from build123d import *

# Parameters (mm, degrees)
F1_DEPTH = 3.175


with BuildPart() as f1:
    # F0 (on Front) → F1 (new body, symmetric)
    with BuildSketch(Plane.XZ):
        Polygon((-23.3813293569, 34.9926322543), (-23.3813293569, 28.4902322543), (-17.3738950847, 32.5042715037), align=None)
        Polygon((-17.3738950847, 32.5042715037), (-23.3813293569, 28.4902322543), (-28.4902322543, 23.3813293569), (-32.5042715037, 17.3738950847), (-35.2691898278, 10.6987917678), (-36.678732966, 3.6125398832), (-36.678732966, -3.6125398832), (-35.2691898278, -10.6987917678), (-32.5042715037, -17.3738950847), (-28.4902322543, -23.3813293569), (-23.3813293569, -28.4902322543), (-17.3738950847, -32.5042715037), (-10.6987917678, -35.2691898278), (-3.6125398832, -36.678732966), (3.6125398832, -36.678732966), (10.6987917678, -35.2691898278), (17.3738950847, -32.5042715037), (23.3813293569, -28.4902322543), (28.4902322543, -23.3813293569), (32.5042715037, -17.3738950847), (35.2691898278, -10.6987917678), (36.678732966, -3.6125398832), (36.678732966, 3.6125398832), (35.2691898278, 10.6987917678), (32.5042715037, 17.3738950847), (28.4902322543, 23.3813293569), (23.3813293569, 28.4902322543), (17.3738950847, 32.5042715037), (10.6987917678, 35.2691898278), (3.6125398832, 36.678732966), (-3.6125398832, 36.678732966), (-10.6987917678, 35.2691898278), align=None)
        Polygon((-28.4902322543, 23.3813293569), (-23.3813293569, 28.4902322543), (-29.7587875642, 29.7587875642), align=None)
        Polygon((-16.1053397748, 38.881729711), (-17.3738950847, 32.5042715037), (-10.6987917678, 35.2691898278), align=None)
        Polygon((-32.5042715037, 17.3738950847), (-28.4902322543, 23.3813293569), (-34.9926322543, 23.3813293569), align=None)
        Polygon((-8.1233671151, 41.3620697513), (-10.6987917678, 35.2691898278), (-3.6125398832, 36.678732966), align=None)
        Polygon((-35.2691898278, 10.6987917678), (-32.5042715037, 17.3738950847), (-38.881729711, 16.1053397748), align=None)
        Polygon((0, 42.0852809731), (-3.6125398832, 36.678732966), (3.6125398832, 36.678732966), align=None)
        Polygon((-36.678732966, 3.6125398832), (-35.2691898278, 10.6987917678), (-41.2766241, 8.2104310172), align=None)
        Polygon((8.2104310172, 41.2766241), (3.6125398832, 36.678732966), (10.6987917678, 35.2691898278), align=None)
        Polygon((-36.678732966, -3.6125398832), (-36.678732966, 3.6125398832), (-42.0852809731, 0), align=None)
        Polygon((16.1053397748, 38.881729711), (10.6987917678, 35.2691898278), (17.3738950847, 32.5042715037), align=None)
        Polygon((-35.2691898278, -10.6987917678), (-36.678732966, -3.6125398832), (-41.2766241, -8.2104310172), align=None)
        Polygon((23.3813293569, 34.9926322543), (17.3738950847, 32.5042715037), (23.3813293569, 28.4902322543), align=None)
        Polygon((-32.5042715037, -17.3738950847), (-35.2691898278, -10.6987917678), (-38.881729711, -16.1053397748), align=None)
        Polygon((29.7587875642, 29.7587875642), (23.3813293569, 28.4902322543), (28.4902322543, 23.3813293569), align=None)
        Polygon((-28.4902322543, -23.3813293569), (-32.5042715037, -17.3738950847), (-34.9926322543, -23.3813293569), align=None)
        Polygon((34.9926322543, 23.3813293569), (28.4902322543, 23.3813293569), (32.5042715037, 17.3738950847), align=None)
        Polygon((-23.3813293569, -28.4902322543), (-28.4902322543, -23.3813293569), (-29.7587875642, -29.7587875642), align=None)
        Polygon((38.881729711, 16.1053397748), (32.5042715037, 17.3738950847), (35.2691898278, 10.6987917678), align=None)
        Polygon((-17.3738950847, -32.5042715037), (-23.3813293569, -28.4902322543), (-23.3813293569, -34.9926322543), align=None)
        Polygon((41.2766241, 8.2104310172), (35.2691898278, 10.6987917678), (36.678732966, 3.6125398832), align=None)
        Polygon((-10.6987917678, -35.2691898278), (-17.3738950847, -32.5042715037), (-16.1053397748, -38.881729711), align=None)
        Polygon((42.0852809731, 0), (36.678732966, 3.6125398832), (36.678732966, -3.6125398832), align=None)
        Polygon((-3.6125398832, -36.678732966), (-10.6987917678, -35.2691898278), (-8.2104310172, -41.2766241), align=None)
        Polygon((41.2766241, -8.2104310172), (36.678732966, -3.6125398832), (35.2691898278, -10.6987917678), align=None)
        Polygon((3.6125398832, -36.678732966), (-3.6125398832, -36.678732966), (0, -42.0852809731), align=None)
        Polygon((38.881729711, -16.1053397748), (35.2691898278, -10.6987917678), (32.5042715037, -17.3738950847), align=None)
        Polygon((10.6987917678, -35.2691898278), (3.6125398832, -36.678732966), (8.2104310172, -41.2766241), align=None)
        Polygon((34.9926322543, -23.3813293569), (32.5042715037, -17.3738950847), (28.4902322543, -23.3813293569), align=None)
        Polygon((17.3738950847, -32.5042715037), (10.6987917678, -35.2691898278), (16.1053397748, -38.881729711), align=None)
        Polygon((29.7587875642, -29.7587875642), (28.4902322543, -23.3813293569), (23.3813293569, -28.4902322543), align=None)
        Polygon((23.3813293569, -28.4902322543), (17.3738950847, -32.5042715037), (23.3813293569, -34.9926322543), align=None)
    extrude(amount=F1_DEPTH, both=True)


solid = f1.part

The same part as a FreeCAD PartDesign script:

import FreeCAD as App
import Part
import Sketcher
Q = App.Units.Quantity

doc = App.newDocument("Part")
body = doc.addObject("PartDesign::Body", "Body")

# Sketch on XZ plane
sketch1 = body.newObject("Sketcher::SketchObject", "Sketch")
sketch1.AttachmentSupport = (doc.getObject("XZ_Plane"), [""])
sketch1.MapMode = "FlatFace"
sketch1.addGeometry([
    Part.LineSegment(App.Vector(-23, 35, 0), App.Vector(-23, 28, 0)),  # 0
    Part.LineSegment(App.Vector(-23, 28, 0), App.Vector(-30, 30, 0)),  # 1
    Part.LineSegment(App.Vector(-30, 30, 0), App.Vector(-28, 23, 0)),  # 2
    Part.LineSegment(App.Vector(-28, 23, 0), App.Vector(-35, 23, 0)),  # 3
    Part.LineSegment(App.Vector(-35, 23, 0), App.Vector(-33, 17, 0)),  # 4
    Part.LineSegment(App.Vector(-33, 17, 0), App.Vector(-39, 16, 0)),  # 5
    Part.LineSegment(App.Vector(-39, 16, 0), App.Vector(-35, 11, 0)),  # 6
    Part.LineSegment(App.Vector(-35, 11, 0), App.Vector(-41, 8, 0)),  # 7
    Part.LineSegment(App.Vector(-41, 8, 0), App.Vector(-37, 4, 0)),  # 8
    Part.LineSegment(App.Vector(-37, 4, 0), App.Vector(-42, 0, 0)),  # 9
    Part.LineSegment(App.Vector(-42, 0, 0), App.Vector(-37, -4, 0)),  # 10
    Part.LineSegment(App.Vector(-37, -4, 0), App.Vector(-41, -8, 0)),  # 11
    Part.LineSegment(App.Vector(-41, -8, 0), App.Vector(-35, -11, 0)),  # 12
    Part.LineSegment(App.Vector(-35, -11, 0), App.Vector(-39, -16, 0)),  # 13
    Part.LineSegment(App.Vector(-39, -16, 0), App.Vector(-33, -17, 0)),  # 14
    Part.LineSegment(App.Vector(-33, -17, 0), App.Vector(-35, -23, 0)),  # 15
    Part.LineSegment(App.Vector(-35, -23, 0), App.Vector(-28, -23, 0)),  # 16
    Part.LineSegment(App.Vector(-28, -23, 0), App.Vector(-30, -30, 0)),  # 17
    Part.LineSegment(App.Vector(-30, -30, 0), App.Vector(-23, -28, 0)),  # 18
    Part.LineSegment(App.Vector(-23, -28, 0), App.Vector(-23, -35, 0)),  # 19
    Part.LineSegment(App.Vector(-23, -35, 0), App.Vector(-17, -33, 0)),  # 20
    Part.LineSegment(App.Vector(-17, -33, 0), App.Vector(-16, -39, 0)),  # 21
    Part.LineSegment(App.Vector(-16, -39, 0), App.Vector(-11, -35, 0)),  # 22
    Part.LineSegment(App.Vector(-11, -35, 0), App.Vector(-8, -41, 0)),  # 23
    Part.LineSegment(App.Vector(-8, -41, 0), App.Vector(-4, -37, 0)),  # 24
    Part.LineSegment(App.Vector(-4, -37, 0), App.Vector(0, -42, 0)),  # 25
    Part.LineSegment(App.Vector(0, -42, 0), App.Vector(4, -37, 0)),  # 26
    Part.LineSegment(App.Vector(4, -37, 0), App.Vector(8, -41, 0)),  # 27
    Part.LineSegment(App.Vector(8, -41, 0), App.Vector(11, -35, 0)),  # 28
    Part.LineSegment(App.Vector(11, -35, 0), App.Vector(16, -39, 0)),  # 29
    Part.LineSegment(App.Vector(16, -39, 0), App.Vector(17, -33, 0)),  # 30
    Part.LineSegment(App.Vector(17, -33, 0), App.Vector(23, -35, 0)),  # 31
    Part.LineSegment(App.Vector(23, -35, 0), App.Vector(23, -28, 0)),  # 32
    Part.LineSegment(App.Vector(23, -28, 0), App.Vector(30, -30, 0)),  # 33
    Part.LineSegment(App.Vector(30, -30, 0), App.Vector(28, -23, 0)),  # 34
    Part.LineSegment(App.Vector(28, -23, 0), App.Vector(35, -23, 0)),  # 35
    Part.LineSegment(App.Vector(35, -23, 0), App.Vector(33, -17, 0)),  # 36
    Part.LineSegment(App.Vector(33, -17, 0), App.Vector(39, -16, 0)),  # 37
    Part.LineSegment(App.Vector(39, -16, 0), App.Vector(35, -11, 0)),  # 38
    Part.LineSegment(App.Vector(35, -11, 0), App.Vector(41, -8, 0)),  # 39
    Part.LineSegment(App.Vector(41, -8, 0), App.Vector(37, -4, 0)),  # 40
    Part.LineSegment(App.Vector(37, -4, 0), App.Vector(42, 0, 0)),  # 41
    Part.LineSegment(App.Vector(42, 0, 0), App.Vector(37, 4, 0)),  # 42
    Part.LineSegment(App.Vector(37, 4, 0), App.Vector(41, 8, 0)),  # 43
    Part.LineSegment(App.Vector(41, 8, 0), App.Vector(35, 11, 0)),  # 44
    Part.LineSegment(App.Vector(35, 11, 0), App.Vector(39, 16, 0)),  # 45
    Part.LineSegment(App.Vector(39, 16, 0), App.Vector(33, 17, 0)),  # 46
    Part.LineSegment(App.Vector(33, 17, 0), App.Vector(35, 23, 0)),  # 47
    Part.LineSegment(App.Vector(35, 23, 0), App.Vector(28, 23, 0)),  # 48
    Part.LineSegment(App.Vector(28, 23, 0), App.Vector(30, 30, 0)),  # 49
    Part.LineSegment(App.Vector(30, 30, 0), App.Vector(23, 28, 0)),  # 50
    Part.LineSegment(App.Vector(23, 28, 0), App.Vector(23, 35, 0)),  # 51
    Part.LineSegment(App.Vector(23, 35, 0), App.Vector(17, 33, 0)),  # 52
    Part.LineSegment(App.Vector(17, 33, 0), App.Vector(16, 39, 0)),  # 53
    Part.LineSegment(App.Vector(16, 39, 0), App.Vector(11, 35, 0)),  # 54
    Part.LineSegment(App.Vector(11, 35, 0), App.Vector(8, 41, 0)),  # 55
    Part.LineSegment(App.Vector(8, 41, 0), App.Vector(4, 37, 0)),  # 56
    Part.LineSegment(App.Vector(4, 37, 0), App.Vector(0, 42, 0)),  # 57
    Part.LineSegment(App.Vector(0, 42, 0), App.Vector(-4, 37, 0)),  # 58
    Part.LineSegment(App.Vector(-4, 37, 0), App.Vector(-8, 41, 0)),  # 59
    Part.LineSegment(App.Vector(-8, 41, 0), App.Vector(-11, 35, 0)),  # 60
    Part.LineSegment(App.Vector(-11, 35, 0), App.Vector(-16, 39, 0)),  # 61
    Part.LineSegment(App.Vector(-16, 39, 0), App.Vector(-17, 33, 0)),  # 62
    Part.LineSegment(App.Vector(-17, 33, 0), App.Vector(-23, 35, 0)),  # 63
], False)
sketch1.addConstraint([
    Sketcher.Constraint("Coincident", 0, 2, 1, 1),
    Sketcher.Constraint("Coincident", 1, 2, 2, 1),
    Sketcher.Constraint("Coincident", 2, 2, 3, 1),
    Sketcher.Constraint("Coincident", 3, 2, 4, 1),
    Sketcher.Constraint("Coincident", 4, 2, 5, 1),
    Sketcher.Constraint("Coincident", 5, 2, 6, 1),
    Sketcher.Constraint("Coincident", 6, 2, 7, 1),
    Sketcher.Constraint("Coincident", 7, 2, 8, 1),
    Sketcher.Constraint("Coincident", 8, 2, 9, 1),
    Sketcher.Constraint("Coincident", 9, 2, 10, 1),
    Sketcher.Constraint("Coincident", 10, 2, 11, 1),
    Sketcher.Constraint("Coincident", 11, 2, 12, 1),
    Sketcher.Constraint("Coincident", 12, 2, 13, 1),
    Sketcher.Constraint("Coincident", 13, 2, 14, 1),
    Sketcher.Constraint("Coincident", 14, 2, 15, 1),
    Sketcher.Constraint("Coincident", 15, 2, 16, 1),
    Sketcher.Constraint("Coincident", 16, 2, 17, 1),
    Sketcher.Constraint("Coincident", 17, 2, 18, 1),
    Sketcher.Constraint("Coincident", 18, 2, 19, 1),
    Sketcher.Constraint("Coincident", 19, 2, 20, 1),
    Sketcher.Constraint("Coincident", 20, 2, 21, 1),
    Sketcher.Constraint("Coincident", 21, 2, 22, 1),
    Sketcher.Constraint("Coincident", 22, 2, 23, 1),
    Sketcher.Constraint("Coincident", 23, 2, 24, 1),
    Sketcher.Constraint("Coincident", 24, 2, 25, 1),
    Sketcher.Constraint("Coincident", 25, 2, 26, 1),
    Sketcher.Constraint("Coincident", 26, 2, 27, 1),
    Sketcher.Constraint("Coincident", 27, 2, 28, 1),
    Sketcher.Constraint("Coincident", 28, 2, 29, 1),
    Sketcher.Constraint("Coincident", 29, 2, 30, 1),
    Sketcher.Constraint("Coincident", 30, 2, 31, 1),
    Sketcher.Constraint("Coincident", 31, 2, 32, 1),
    Sketcher.Constraint("Coincident", 32, 2, 33, 1),
    Sketcher.Constraint("Coincident", 33, 2, 34, 1),
    Sketcher.Constraint("Coincident", 34, 2, 35, 1),
    Sketcher.Constraint("Coincident", 35, 2, 36, 1),
    Sketcher.Constraint("Coincident", 36, 2, 37, 1),
    Sketcher.Constraint("Coincident", 37, 2, 38, 1),
    Sketcher.Constraint("Coincident", 38, 2, 39, 1),
    Sketcher.Constraint("Coincident", 39, 2, 40, 1),
    Sketcher.Constraint("Coincident", 40, 2, 41, 1),
    Sketcher.Constraint("Coincident", 41, 2, 42, 1),
    Sketcher.Constraint("Coincident", 42, 2, 43, 1),
    Sketcher.Constraint("Coincident", 43, 2, 44, 1),
    Sketcher.Constraint("Coincident", 44, 2, 45, 1),
    Sketcher.Constraint("Coincident", 45, 2, 46, 1),
    Sketcher.Constraint("Coincident", 46, 2, 47, 1),
    Sketcher.Constraint("Coincident", 47, 2, 48, 1),
    Sketcher.Constraint("Coincident", 48, 2, 49, 1),
    Sketcher.Constraint("Coincident", 49, 2, 50, 1),
    Sketcher.Constraint("Coincident", 50, 2, 51, 1),
    Sketcher.Constraint("Coincident", 51, 2, 52, 1),
    Sketcher.Constraint("Coincident", 52, 2, 53, 1),
    Sketcher.Constraint("Coincident", 53, 2, 54, 1),
    Sketcher.Constraint("Coincident", 54, 2, 55, 1),
    Sketcher.Constraint("Coincident", 55, 2, 56, 1),
    Sketcher.Constraint("Coincident", 56, 2, 57, 1),
    Sketcher.Constraint("Coincident", 57, 2, 58, 1),
    Sketcher.Constraint("Coincident", 58, 2, 59, 1),
    Sketcher.Constraint("Coincident", 59, 2, 60, 1),
    Sketcher.Constraint("Coincident", 60, 2, 61, 1),
    Sketcher.Constraint("Coincident", 61, 2, 62, 1),
    Sketcher.Constraint("Coincident", 62, 2, 63, 1),
    Sketcher.Constraint("Coincident", 63, 2, 0, 1),
    Sketcher.Constraint("Vertical", 0),
    Sketcher.Constraint("Horizontal", 3),
    Sketcher.Constraint("Horizontal", 16),
    Sketcher.Constraint("Vertical", 19),
    Sketcher.Constraint("Vertical", 32),
    Sketcher.Constraint("Horizontal", 35),
    Sketcher.Constraint("Horizontal", 48),
    Sketcher.Constraint("Vertical", 51),
    Sketcher.Constraint("Symmetric", 0, 2, 32, 2, -1, 1),
    Sketcher.Constraint("Symmetric", 1, 2, 33, 2, -1, 1),
    Sketcher.Constraint("Symmetric", 2, 2, 34, 2, -1, 1),
    Sketcher.Constraint("Symmetric", 4, 2, 36, 2, -1, 1),
    Sketcher.Constraint("Symmetric", 5, 2, 37, 2, -1, 1),
    Sketcher.Constraint("Symmetric", 6, 2, 38, 2, -1, 1),
    Sketcher.Constraint("Symmetric", 7, 2, 39, 2, -1, 1),
    Sketcher.Constraint("Symmetric", 8, 2, 40, 2, -1, 1),
    Sketcher.Constraint("Symmetric", 9, 2, 41, 2, -1, 1),
    Sketcher.Constraint("Symmetric", 10, 2, 42, 2, -1, 1),
    Sketcher.Constraint("Symmetric", 11, 2, 43, 2, -1, 1),
    Sketcher.Constraint("Symmetric", 12, 2, 44, 2, -1, 1),
    Sketcher.Constraint("Symmetric", 13, 2, 45, 2, -1, 1),
    Sketcher.Constraint("Symmetric", 14, 2, 46, 2, -1, 1),
    Sketcher.Constraint("Symmetric", 15, 2, 47, 2, -1, 1),
    Sketcher.Constraint("Symmetric", 17, 2, 49, 2, -1, 1),
    Sketcher.Constraint("Symmetric", 18, 2, 50, 2, -1, 1),
    Sketcher.Constraint("Symmetric", 20, 2, 52, 2, -1, 1),
    Sketcher.Constraint("Symmetric", 21, 2, 53, 2, -1, 1),
    Sketcher.Constraint("Symmetric", 22, 2, 54, 2, -1, 1),
    Sketcher.Constraint("Symmetric", 23, 2, 55, 2, -1, 1),
    Sketcher.Constraint("Symmetric", 24, 2, 56, 2, -1, 1),
    Sketcher.Constraint("Symmetric", 25, 2, 57, 2, -1, 1),
    Sketcher.Constraint("Symmetric", 26, 2, 58, 2, -1, 1),
    Sketcher.Constraint("Symmetric", 28, 2, 60, 2, -1, 1),
    Sketcher.Constraint("Symmetric", 29, 2, 61, 2, -1, 1),
    Sketcher.Constraint("Symmetric", 30, 2, 62, 2, -1, 1),
    Sketcher.Constraint("Symmetric", 24, 2, 26, 2, -2),
    Sketcher.Constraint("Symmetric", 23, 2, 27, 2, -2),
    Sketcher.Constraint("Symmetric", 22, 2, 28, 2, -2),
    Sketcher.Constraint("Symmetric", 21, 2, 29, 2, -2),
    Sketcher.Constraint("Symmetric", 20, 2, 30, 2, -2),
    Sketcher.Constraint("Symmetric", 19, 2, 31, 2, -2),
    Sketcher.Constraint("Symmetric", 17, 2, 33, 2, -2),
    Sketcher.Constraint("Symmetric", 16, 2, 34, 2, -2),
    Sketcher.Constraint("Symmetric", 14, 2, 36, 2, -2),
    Sketcher.Constraint("Symmetric", 13, 2, 37, 2, -2),
    Sketcher.Constraint("Symmetric", 12, 2, 38, 2, -2),
    Sketcher.Constraint("Symmetric", 11, 2, 39, 2, -2),
    Sketcher.Constraint("Symmetric", 10, 2, 40, 2, -2),
    Sketcher.Constraint("PointOnObject", 9, 2, -1),
    Sketcher.Constraint("PointOnObject", 25, 2, -2),
    Sketcher.Constraint("Perpendicular", 2, 5),
    Sketcher.Constraint("Perpendicular", 4, 7),
    Sketcher.Constraint("Perpendicular", 6, 9),
    Sketcher.Constraint("Perpendicular", 8, 11),
    Sketcher.Constraint("Parallel", 1, 14),
    Sketcher.Constraint("Perpendicular", 12, 15),
    Sketcher.Constraint("Parallel", 5, 18),
    Sketcher.Constraint("Parallel", 7, 20),
    Sketcher.Constraint("Perpendicular", 18, 21),
    Sketcher.Constraint("Parallel", 9, 22),
    Sketcher.Constraint("Perpendicular", 20, 23),
    Sketcher.Constraint("Parallel", 11, 24),
    Sketcher.Constraint("Perpendicular", 22, 25),
    Sketcher.Constraint("Parallel", 23, 36),
    Sketcher.Constraint("Perpendicular", 46, 49),
    Sketcher.Constraint("Parallel", 39, 52),
    Sketcher.Constraint("Perpendicular", 47, 63),
    Sketcher.Constraint("Equal", 48, 0),
    Sketcher.Constraint("Equal", 1, 2),
    Sketcher.Constraint("Equal", 2, 4),
    Sketcher.Constraint("Equal", 4, 5),
    Sketcher.Constraint("Equal", 5, 6),
    Sketcher.Constraint("Equal", 6, 7),
    Sketcher.Constraint("Equal", 7, 8),
    Sketcher.Constraint("Equal", 8, 9),
    Sketcher.Constraint("Equal", 18, 20),
    Sketcher.Constraint("Equal", 20, 21),
    Sketcher.Constraint("Equal", 21, 22),
    Sketcher.Constraint("Equal", 22, 23),
    Sketcher.Constraint("Equal", 23, 24),
    Sketcher.Constraint("Equal", 24, 25),
    Sketcher.Constraint("Equal", 58, 59),
    Sketcher.Constraint("Angle", 4, Q("-67.5 deg")),
    Sketcher.Constraint("DistanceX", 3, 2, 3, 1, Q("0.256 in")),
    Sketcher.Constraint("Angle", 1, Q("168.75 deg")),
    Sketcher.Constraint("Angle", 6, Q("-56.25 deg")),
    Sketcher.Constraint("Distance", 1, Q("0.256 in")),
    Sketcher.Constraint("Distance", 60, Q("6.614832 mm")),
])
pad1 = body.newObject("PartDesign::Pad", "Pad")
pad1.Profile = sketch1
pad1.Length = Q("0.25 in")
pad1.Midplane = True

doc.recompute()
